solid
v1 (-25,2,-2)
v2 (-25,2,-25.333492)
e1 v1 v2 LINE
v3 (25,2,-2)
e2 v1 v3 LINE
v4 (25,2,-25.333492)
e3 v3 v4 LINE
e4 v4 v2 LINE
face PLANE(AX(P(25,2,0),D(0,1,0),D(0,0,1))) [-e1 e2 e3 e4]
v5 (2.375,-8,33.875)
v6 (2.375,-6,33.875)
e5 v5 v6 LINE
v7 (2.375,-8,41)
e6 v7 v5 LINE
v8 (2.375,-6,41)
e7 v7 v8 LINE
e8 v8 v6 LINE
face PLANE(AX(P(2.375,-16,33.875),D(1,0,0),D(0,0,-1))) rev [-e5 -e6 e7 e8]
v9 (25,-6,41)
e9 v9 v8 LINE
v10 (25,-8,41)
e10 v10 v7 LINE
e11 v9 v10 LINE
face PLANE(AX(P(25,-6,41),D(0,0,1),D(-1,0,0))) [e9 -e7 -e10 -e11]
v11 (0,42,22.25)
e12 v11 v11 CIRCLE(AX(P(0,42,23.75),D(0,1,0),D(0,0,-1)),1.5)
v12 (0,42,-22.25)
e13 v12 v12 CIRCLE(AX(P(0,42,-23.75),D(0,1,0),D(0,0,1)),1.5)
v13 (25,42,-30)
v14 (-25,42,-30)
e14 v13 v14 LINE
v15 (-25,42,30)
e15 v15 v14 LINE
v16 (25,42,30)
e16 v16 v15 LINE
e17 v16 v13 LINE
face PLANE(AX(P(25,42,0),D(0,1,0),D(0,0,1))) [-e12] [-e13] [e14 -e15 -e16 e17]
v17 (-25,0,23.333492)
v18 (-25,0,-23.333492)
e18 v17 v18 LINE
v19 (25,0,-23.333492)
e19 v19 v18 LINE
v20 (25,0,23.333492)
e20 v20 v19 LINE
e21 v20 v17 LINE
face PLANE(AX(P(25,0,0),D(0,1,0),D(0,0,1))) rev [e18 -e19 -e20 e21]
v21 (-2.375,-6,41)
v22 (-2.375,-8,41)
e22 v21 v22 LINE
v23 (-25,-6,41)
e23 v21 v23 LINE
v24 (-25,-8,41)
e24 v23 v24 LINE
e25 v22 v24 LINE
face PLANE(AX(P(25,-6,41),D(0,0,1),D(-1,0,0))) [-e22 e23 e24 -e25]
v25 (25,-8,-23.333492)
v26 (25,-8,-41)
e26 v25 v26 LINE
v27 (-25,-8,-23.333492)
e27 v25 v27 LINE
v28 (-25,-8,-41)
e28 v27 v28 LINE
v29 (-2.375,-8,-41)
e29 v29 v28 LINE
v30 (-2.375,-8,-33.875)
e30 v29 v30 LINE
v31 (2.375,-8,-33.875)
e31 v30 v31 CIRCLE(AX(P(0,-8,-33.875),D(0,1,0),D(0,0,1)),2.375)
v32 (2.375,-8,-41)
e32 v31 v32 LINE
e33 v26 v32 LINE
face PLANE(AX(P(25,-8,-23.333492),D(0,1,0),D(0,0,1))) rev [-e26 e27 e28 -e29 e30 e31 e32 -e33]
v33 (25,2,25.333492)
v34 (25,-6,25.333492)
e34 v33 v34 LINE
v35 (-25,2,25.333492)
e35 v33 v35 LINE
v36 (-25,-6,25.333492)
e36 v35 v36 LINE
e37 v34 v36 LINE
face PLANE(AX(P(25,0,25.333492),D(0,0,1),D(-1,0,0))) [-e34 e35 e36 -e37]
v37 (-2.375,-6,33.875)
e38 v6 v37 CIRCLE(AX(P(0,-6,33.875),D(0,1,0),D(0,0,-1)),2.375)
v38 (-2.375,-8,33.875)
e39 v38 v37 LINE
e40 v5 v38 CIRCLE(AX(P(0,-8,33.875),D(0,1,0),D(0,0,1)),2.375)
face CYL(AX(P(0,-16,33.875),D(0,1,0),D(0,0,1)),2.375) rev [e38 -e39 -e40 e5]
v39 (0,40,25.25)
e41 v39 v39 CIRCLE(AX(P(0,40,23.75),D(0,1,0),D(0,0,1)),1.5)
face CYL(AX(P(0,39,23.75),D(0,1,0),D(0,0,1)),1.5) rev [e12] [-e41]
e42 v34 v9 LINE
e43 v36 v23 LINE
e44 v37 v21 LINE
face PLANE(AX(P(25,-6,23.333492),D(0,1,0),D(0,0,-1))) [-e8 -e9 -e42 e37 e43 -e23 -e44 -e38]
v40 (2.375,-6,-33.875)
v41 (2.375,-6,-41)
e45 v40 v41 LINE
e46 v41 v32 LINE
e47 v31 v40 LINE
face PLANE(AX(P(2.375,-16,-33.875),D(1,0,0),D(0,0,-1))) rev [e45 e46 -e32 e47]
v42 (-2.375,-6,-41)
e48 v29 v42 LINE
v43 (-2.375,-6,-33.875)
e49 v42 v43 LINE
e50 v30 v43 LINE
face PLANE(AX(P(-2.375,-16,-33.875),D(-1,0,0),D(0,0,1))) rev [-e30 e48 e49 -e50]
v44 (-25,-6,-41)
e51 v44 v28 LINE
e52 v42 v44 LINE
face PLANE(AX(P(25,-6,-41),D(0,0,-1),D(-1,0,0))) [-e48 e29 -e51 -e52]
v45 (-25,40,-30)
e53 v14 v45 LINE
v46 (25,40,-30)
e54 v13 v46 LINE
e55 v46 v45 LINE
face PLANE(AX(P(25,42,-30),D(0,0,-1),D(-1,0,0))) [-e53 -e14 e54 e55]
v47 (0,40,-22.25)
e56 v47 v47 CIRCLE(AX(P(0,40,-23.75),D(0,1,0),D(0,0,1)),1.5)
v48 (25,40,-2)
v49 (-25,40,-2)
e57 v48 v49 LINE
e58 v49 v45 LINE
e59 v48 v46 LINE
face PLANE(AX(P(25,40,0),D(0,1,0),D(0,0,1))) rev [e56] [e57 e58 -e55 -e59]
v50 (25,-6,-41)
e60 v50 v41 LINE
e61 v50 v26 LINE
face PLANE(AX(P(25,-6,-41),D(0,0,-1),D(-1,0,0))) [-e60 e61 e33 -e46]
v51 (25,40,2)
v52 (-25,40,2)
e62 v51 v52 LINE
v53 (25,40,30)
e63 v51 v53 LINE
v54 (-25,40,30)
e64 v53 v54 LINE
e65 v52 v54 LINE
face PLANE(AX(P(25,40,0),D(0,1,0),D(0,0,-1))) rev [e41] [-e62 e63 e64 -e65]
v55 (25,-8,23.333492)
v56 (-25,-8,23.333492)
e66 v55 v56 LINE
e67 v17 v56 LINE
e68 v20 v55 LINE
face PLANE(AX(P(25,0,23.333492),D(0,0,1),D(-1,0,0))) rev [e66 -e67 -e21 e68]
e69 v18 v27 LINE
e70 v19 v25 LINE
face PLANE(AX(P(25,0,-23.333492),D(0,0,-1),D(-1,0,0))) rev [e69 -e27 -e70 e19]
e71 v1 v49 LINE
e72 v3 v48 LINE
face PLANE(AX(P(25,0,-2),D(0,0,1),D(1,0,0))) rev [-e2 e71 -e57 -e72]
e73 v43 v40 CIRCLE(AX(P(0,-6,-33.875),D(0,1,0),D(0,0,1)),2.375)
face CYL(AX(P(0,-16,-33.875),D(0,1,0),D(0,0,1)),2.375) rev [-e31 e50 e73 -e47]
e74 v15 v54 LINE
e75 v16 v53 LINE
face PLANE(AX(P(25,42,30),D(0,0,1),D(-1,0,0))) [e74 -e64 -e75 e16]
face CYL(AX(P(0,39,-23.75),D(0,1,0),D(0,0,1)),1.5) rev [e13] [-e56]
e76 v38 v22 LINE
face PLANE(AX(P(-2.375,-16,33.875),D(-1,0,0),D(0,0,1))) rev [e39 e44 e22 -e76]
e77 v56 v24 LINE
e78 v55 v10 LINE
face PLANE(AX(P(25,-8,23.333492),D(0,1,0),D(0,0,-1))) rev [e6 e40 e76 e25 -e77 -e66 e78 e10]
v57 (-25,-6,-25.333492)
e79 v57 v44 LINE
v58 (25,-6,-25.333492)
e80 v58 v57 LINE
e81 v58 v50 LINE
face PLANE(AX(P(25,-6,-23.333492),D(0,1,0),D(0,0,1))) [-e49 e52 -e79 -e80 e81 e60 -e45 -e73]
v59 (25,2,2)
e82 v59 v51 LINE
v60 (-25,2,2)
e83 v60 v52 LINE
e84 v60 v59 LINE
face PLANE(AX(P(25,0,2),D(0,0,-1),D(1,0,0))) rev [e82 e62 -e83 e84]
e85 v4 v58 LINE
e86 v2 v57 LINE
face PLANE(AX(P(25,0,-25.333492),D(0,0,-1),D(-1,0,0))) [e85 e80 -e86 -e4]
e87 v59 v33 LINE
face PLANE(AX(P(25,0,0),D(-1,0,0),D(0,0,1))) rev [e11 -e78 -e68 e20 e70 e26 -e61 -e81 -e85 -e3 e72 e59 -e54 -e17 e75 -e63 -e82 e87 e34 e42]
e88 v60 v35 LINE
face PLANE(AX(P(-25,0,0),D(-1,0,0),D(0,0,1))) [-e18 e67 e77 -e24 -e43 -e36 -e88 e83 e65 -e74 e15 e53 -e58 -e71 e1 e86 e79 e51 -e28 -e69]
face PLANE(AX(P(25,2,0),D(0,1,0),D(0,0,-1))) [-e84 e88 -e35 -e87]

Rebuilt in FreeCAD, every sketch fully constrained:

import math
import FreeCAD as App
import Part
import Sketcher
Q = App.Units.Quantity


def add_polygon(sketch, points):
    """Adds a closed chain of lines whose ends are joined by coincident constraints."""
    first, n = sketch.GeometryCount, len(points)
    for a, b in zip(points, points[1:] + points[:1]):
        sketch.addGeometry(Part.LineSegment(App.Vector(*a, 0), App.Vector(*b, 0)), False)
    for i in range(n):
        sketch.addConstraint(Sketcher.Constraint("Coincident", first + i, 2, first + (i + 1) % n, 1))

doc = App.newDocument("Part")
body = doc.addObject("PartDesign::Body", "Body")

# Sketch on YZ plane
sketch1 = doc.addObject("Sketcher::SketchObject", "Sketch")
body.addObject(sketch1)
sketch1.AttachmentSupport = (doc.YZ_Plane, [""])
sketch1.MapMode = "FlatFace"
add_polygon(sketch1, [(0, 0), (0, -23.3), (-8, -23.3), (-8, -41), (-6, -41), (-6, -25.3), (2, -25.3), (2, 0)])  # lines 0-7
sketch1.addConstraint([
    Sketcher.Constraint("Vertical", 0),
    Sketcher.Constraint("Horizontal", 1),
    Sketcher.Constraint("Vertical", 2),
    Sketcher.Constraint("Horizontal", 3),
    Sketcher.Constraint("Vertical", 4),
    Sketcher.Constraint("Horizontal", 5),
    Sketcher.Constraint("Vertical", 6),
    Sketcher.Constraint("Horizontal", 7),
    Sketcher.Constraint("Coincident", 7, 2, -1, 1),
    Sketcher.Constraint("Equal", 1, 5),
    Sketcher.Constraint("DistanceX", 1, 2, 1, 1, Q("8 mm")),
    Sketcher.Constraint("DistanceX", 3, 1, 3, 2, Q("2 mm")),
    Sketcher.Constraint("DistanceY", 2, 2, -1, 1, Q("41 mm")),
    Sketcher.Constraint("DistanceY", 4, 2, 1, 2, Q("2 mm")),
    Sketcher.Constraint("DistanceY", 0, 2, 0, 1, Q("23.333492 mm")),
])
pad1 = doc.addObject("PartDesign::Pad", "Pad")
body.addObject(pad1)
pad1.Profile = sketch1
pad1.Length = 50
pad1.Midplane = True

# Sketch on YZ plane
sketch2 = doc.addObject("Sketcher::SketchObject", "Sketch001")
body.addObject(sketch2)
sketch2.AttachmentSupport = (doc.YZ_Plane, [""])
sketch2.MapMode = "FlatFace"
add_polygon(sketch2, [(42, 0), (0, 0), (0, -2), (40, -2), (40, -30), (42, -30)])  # lines 0-5
sketch2.addConstraint([
    Sketcher.Constraint("Horizontal", 0),
    Sketcher.Constraint("Vertical", 1),
    Sketcher.Constraint("Horizontal", 2),
    Sketcher.Constraint("Vertical", 3),
    Sketcher.Constraint("Horizontal", 4),
    Sketcher.Constraint("Vertical", 5),
    Sketcher.Constraint("Coincident", 0, 2, -1, 1),
    Sketcher.Constraint("Equal", 4, 1),
    Sketcher.Constraint("DistanceX", 0, 2, 0, 1, Q("42 mm")),
    Sketcher.Constraint("DistanceX", 2, 1, 2, 2, Q("40 mm")),
    Sketcher.Constraint("DistanceY", 3, 2, 3, 1, Q("28 mm")),
])
pad2 = doc.addObject("PartDesign::Pad", "Pad001")
body.addObject(pad2)
pad2.Profile = sketch2
pad2.Length = 50
pad2.Midplane = True
body2 = doc.addObject("PartDesign::Body", "Body001")
doc.recompute()

body2.BaseFeature = body
doc.recompute()

mirroring = doc.addObject("Part::Mirroring", "Mirroring")
mirroring.Source = body
mirroring.Base = App.Vector(0, 21, 0)
mirroring.Normal = App.Vector(0, 0, 1)
body3 = doc.addObject("PartDesign::Body", "Body002")
body3.BaseFeature = mirroring
boolean = doc.addObject("PartDesign::Boolean", "Boolean")
body2.addObject(boolean)
boolean.Type = "Fuse"
boolean.addObjects([body3])
doc.recompute()

# Sketch on XZ plane
sketch3 = doc.addObject("Sketcher::SketchObject", "Sketch002")
body2.addObject(sketch3)
sketch3.AttachmentSupport = (doc.getObject("XZ_Plane001"), [""])
sketch3.MapMode = "FlatFace"
sketch3.AttachmentOffset = App.Placement(App.Vector(0, 0, 6), App.Rotation())
sketch3.addGeometry([
    Part.LineSegment(App.Vector(-2.4, -51.6, 0), App.Vector(-2.4, -33.9, 0)),  # 0
    Part.ArcOfCircle(Part.Circle(App.Vector(0, -33.9, 0), App.Vector(0, 0, 1), 2.4), math.radians(0), math.radians(180)),  # 1
    Part.LineSegment(App.Vector(2.4, -33.9, 0), App.Vector(2.4, -51.6, 0)),  # 2
    Part.ArcOfCircle(Part.Circle(App.Vector(0, -51.6, 0), App.Vector(0, 0, 1), 2.4), math.radians(180), math.radians(360)),  # 3
    Part.LineSegment(App.Vector(-2.4, 33.9, 0), App.Vector(-2.4, 51.6, 0)),  # 4
    Part.ArcOfCircle(Part.Circle(App.Vector(0, 51.6, 0), App.Vector(0, 0, 1), 2.4), math.radians(0), math.radians(180)),  # 5
    Part.LineSegment(App.Vector(2.4, 51.6, 0), App.Vector(2.4, 33.9, 0)),  # 6
    Part.ArcOfCircle(Part.Circle(App.Vector(0, 33.9, 0), App.Vector(0, 0, 1), 2.4), math.radians(180), math.radians(360)),  # 7
], False)
sketch3.addConstraint([
    Sketcher.Constraint("Tangent", 0, 2, 1, 2),
    Sketcher.Constraint("Tangent", 1, 1, 2, 1),
    Sketcher.Constraint("Tangent", 2, 2, 3, 2),
    Sketcher.Constraint("Tangent", 3, 1, 0, 1),
    Sketcher.Constraint("Tangent", 4, 2, 5, 2),
    Sketcher.Constraint("Tangent", 5, 1, 6, 1),
    Sketcher.Constraint("Tangent", 6, 2, 7, 2),
    Sketcher.Constraint("Tangent", 7, 1, 4, 1),
    Sketcher.Constraint("Vertical", 0),
    Sketcher.Constraint("Vertical", 2),
    Sketcher.Constraint("Vertical", 4),
    Sketcher.Constraint("Vertical", 6),
    Sketcher.Constraint("Equal", 3, 5),
    Sketcher.Constraint("Symmetric", 3, 3, 5, 3, -1, 1),
    Sketcher.Constraint("Symmetric", 1, 3, 7, 3, -1),
    Sketcher.Constraint("Radius", 1, Q("2.375 mm")),
    Sketcher.Constraint("DistanceY", 1, 3, 7, 3, Q("67.75 mm")),
    Sketcher.Constraint("DistanceY", 0, 1, 0, 2, Q("17.685436 mm")),
])
pocket1 = doc.addObject("PartDesign::Pocket", "Pocket")
body2.addObject(pocket1)
pocket1.Profile = sketch3
pocket1.Length = 10
pocket1.Reversed = True

# Sketch on XZ plane
sketch4 = doc.addObject("Sketcher::SketchObject", "Sketch003")
body2.addObject(sketch4)
sketch4.AttachmentSupport = (doc.getObject("XZ_Plane001"), [""])
sketch4.MapMode = "FlatFace"
sketch4.AttachmentOffset = App.Placement(App.Vector(0, 0, -42), App.Rotation())
sketch4.addGeometry([
    Part.Circle(App.Vector(0, -23.8, 0), App.Vector(0, 0, 1), 1.5),
    Part.Circle(App.Vector(0, 23.8, 0), App.Vector(0, 0, 1), 1.5),
], False)
sketch4.addConstraint([
    Sketcher.Constraint("Equal", 0, 1),
    Sketcher.Constraint("Symmetric", 0, 3, 1, 3, -1, 1),
    Sketcher.Constraint("PointOnObject", 0, 3, -2),
    Sketcher.Constraint("Diameter", 0, Q("3 mm")),
    Sketcher.Constraint("DistanceY", 0, 3, 1, 3, Q("47.5 mm")),
])
pocket2 = doc.addObject("PartDesign::Pocket", "Pocket001")
body2.addObject(pocket2)
pocket2.Profile = sketch4
pocket2.Length = 3
pocket2.Reversed = True
mirroring.Visibility = False

doc.recompute()
